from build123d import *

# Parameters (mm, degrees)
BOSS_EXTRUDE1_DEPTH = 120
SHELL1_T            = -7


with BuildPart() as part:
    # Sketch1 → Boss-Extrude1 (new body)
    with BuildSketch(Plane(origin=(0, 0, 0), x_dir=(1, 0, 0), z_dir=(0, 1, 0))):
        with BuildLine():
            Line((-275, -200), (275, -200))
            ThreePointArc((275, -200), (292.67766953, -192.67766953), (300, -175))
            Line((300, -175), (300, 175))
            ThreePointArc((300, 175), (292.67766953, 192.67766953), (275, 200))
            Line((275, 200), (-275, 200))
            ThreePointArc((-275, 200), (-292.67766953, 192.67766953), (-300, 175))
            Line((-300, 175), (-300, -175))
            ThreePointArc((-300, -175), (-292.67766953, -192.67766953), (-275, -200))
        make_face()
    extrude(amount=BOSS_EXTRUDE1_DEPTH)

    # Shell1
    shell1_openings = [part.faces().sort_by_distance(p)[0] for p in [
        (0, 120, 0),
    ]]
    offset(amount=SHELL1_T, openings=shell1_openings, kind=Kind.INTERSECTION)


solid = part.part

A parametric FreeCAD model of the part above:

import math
import FreeCAD as App
import Part
import Sketcher

V = App.Vector
Q = App.Units.Quantity


def faces_at(feature, points):
    """Names of the faces that lie closest to the given points."""
    faces = feature.Shape.Faces
    near = lambda p: min(range(len(faces)), key=lambda i: faces[i].distToShape(Part.Vertex(*p))[0])
    return sorted({f"Face{near(p) + 1}" for p in points})

doc = App.newDocument("Part")
body = doc.addObject("PartDesign::Body", "Body")

# Sketch on XZ plane
sketch1 = body.newObject("Sketcher::SketchObject", "Sketch")
sketch1.AttachmentSupport = (doc.getObject("XZ_Plane"), [""])
sketch1.MapMode = "FlatFace"
sketch1.addGeometry([
    Part.LineSegment(V(-275, 200, 0), V(275, 200, 0)),  # 0
    Part.ArcOfCircle(Part.Circle(V(275, 175, 0), V(0, 0, 1), 25), math.radians(0), math.radians(90)),  # 1
    Part.LineSegment(V(300, 175, 0), V(300, -175, 0)),  # 2
    Part.ArcOfCircle(Part.Circle(V(275, -175, 0), V(0, 0, 1), 25), math.radians(-90), math.radians(0)),  # 3
    Part.LineSegment(V(275, -200, 0), V(-275, -200, 0)),  # 4
    Part.ArcOfCircle(Part.Circle(V(-275, -175, 0), V(0, 0, 1), 25), math.radians(180), math.radians(270)),  # 5
    Part.LineSegment(V(-300, -175, 0), V(-300, 175, 0)),  # 6
    Part.ArcOfCircle(Part.Circle(V(-275, 175, 0), V(0, 0, 1), 25), math.radians(90), math.radians(180)),  # 7
], False)
sketch1.addConstraint([
    Sketcher.Constraint("Tangent", 0, 2, 1, 2),
    Sketcher.Constraint("Tangent", 1, 1, 2, 1),
    Sketcher.Constraint("Tangent", 2, 2, 3, 2),
    Sketcher.Constraint("Tangent", 3, 1, 4, 1),
    Sketcher.Constraint("Tangent", 4, 2, 5, 2),
    Sketcher.Constraint("Tangent", 5, 1, 6, 1),
    Sketcher.Constraint("Tangent", 6, 2, 7, 2),
    Sketcher.Constraint("Tangent", 7, 1, 0, 1),
    Sketcher.Constraint("Horizontal", 0),
    Sketcher.Constraint("Vertical", 2),
    Sketcher.Constraint("Horizontal", 4),
    Sketcher.Constraint("Vertical", 6),
    Sketcher.Constraint("Equal", 1, 3),
    Sketcher.Constraint("Equal", 3, 5),
    Sketcher.Constraint("Equal", 5, 7),
    Sketcher.Constraint("Symmetric", 1, 3, 5, 3, -1, 1),
    Sketcher.Constraint("Radius", 1, Q("25 mm")),
    Sketcher.Constraint("DistanceX", 0, 1, 0, 2, Q("550 mm")),
    Sketcher.Constraint("DistanceY", 2, 2, 2, 1, Q("350 mm")),
])
pad1 = body.newObject("PartDesign::Pad", "Pad")
pad1.Profile = sketch1
pad1.Length = 120
pad1.Reversed = True
doc.recompute()

thickness = body.newObject("PartDesign::Thickness", "Thickness")
thickness.Base = (pad1, faces_at(pad1, [(0, 120, 0)]))
thickness.Value = 7
thickness.Reversed = True
thickness.Join = "Intersection"

doc.recompute()
